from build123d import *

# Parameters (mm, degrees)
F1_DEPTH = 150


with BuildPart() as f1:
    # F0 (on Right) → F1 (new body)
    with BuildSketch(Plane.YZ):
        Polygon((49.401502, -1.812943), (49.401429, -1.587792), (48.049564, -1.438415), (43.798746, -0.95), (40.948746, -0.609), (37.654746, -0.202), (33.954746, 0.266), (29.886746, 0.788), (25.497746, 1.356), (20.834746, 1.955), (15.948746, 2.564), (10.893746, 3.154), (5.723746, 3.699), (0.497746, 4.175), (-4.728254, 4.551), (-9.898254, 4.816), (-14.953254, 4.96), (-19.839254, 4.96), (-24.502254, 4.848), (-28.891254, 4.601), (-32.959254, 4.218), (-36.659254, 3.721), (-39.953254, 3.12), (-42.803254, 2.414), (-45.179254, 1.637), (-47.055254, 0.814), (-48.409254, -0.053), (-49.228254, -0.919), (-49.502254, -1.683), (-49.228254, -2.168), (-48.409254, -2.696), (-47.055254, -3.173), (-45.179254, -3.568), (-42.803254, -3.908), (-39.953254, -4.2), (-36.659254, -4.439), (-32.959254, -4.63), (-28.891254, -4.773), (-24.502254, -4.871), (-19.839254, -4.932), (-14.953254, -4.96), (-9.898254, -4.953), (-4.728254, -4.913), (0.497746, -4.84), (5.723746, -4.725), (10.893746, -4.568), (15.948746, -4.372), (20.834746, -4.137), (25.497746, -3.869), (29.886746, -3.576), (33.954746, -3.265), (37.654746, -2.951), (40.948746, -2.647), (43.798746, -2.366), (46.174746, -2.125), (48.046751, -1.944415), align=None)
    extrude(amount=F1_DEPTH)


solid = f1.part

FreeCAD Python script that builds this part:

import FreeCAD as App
import Part
import Sketcher
from FreeCAD import Vector
Q = App.Units.Quantity

doc = App.newDocument("Part")
body = doc.addObject("PartDesign::Body", "Body")

# Sketch on YZ plane
sketch1 = body.newObject("Sketcher::SketchObject", "Sketch")
sketch1.AttachmentSupport = (doc.getObject("YZ_Plane"), [""])
sketch1.MapMode = "FlatFace"
sketch1.addGeometry(Part.LineSegment(Vector(49.401502, -1.812943, 0), Vector(49.401429, -1.587792, 0)), False)
sketch1.addGeometry(Part.LineSegment(Vector(49.401429, -1.587792, 0), Vector(48.049564, -1.438415, 0)), False)
sketch1.addGeometry(Part.LineSegment(Vector(48.049564, -1.438415, 0), Vector(43.798746, -0.95, 0)), False)
sketch1.addGeometry(Part.LineSegment(Vector(43.798746, -0.95, 0), Vector(40.948746, -0.609, 0)), False)
sketch1.addGeometry(Part.LineSegment(Vector(40.948746, -0.609, 0), Vector(37.654746, -0.202, 0)), False)
sketch1.addGeometry(Part.LineSegment(Vector(37.654746, -0.202, 0), Vector(33.954746, 0.266, 0)), False)
sketch1.addGeometry(Part.LineSegment(Vector(33.954746, 0.266, 0), Vector(29.886746, 0.788, 0)), False)
sketch1.addGeometry(Part.LineSegment(Vector(29.886746, 0.788, 0), Vector(25.497746, 1.356, 0)), False)
sketch1.addGeometry(Part.LineSegment(Vector(25.497746, 1.356, 0), Vector(20.834746, 1.955, 0)), False)
sketch1.addGeometry(Part.LineSegment(Vector(20.834746, 1.955, 0), Vector(15.948746, 2.564, 0)), False)
sketch1.addGeometry(Part.LineSegment(Vector(15.948746, 2.564, 0), Vector(10.893746, 3.154, 0)), False)
sketch1.addGeometry(Part.LineSegment(Vector(10.893746, 3.154, 0), Vector(5.723746, 3.699, 0)), False)
sketch1.addGeometry(Part.LineSegment(Vector(5.723746, 3.699, 0), Vector(0.497746, 4.175, 0)), False)
sketch1.addGeometry(Part.LineSegment(Vector(0.497746, 4.175, 0), Vector(-4.728254, 4.551, 0)), False)
sketch1.addGeometry(Part.LineSegment(Vector(-4.728254, 4.551, 0), Vector(-9.898254, 4.816, 0)), False)
sketch1.addGeometry(Part.LineSegment(Vector(-9.898254, 4.816, 0), Vector(-14.953254, 4.96, 0)), False)
sketch1.addGeometry(Part.LineSegment(Vector(-14.953254, 4.96, 0), Vector(-19.839254, 4.96, 0)), False)
sketch1.addGeometry(Part.LineSegment(Vector(-19.839254, 4.96, 0), Vector(-24.502254, 4.848, 0)), False)
sketch1.addGeometry(Part.LineSegment(Vector(-24.502254, 4.848, 0), Vector(-28.891254, 4.601, 0)), False)
sketch1.addGeometry(Part.LineSegment(Vector(-28.891254, 4.601, 0), Vector(-32.959254, 4.218, 0)), False)
sketch1.addGeometry(Part.LineSegment(Vector(-32.959254, 4.218, 0), Vector(-36.659254, 3.721, 0)), False)
sketch1.addGeometry(Part.LineSegment(Vector(-36.659254, 3.721, 0), Vector(-39.953254, 3.12, 0)), False)
sketch1.addGeometry(Part.LineSegment(Vector(-39.953254, 3.12, 0), Vector(-42.803254, 2.414, 0)), False)
sketch1.addGeometry(Part.LineSegment(Vector(-42.803254, 2.414, 0), Vector(-45.179254, 1.637, 0)), False)
sketch1.addGeometry(Part.LineSegment(Vector(-45.179254, 1.637, 0), Vector(-47.055254, 0.814, 0)), False)
sketch1.addGeometry(Part.LineSegment(Vector(-47.055254, 0.814, 0), Vector(-48.409254, -0.053, 0)), False)
sketch1.addGeometry(Part.LineSegment(Vector(-48.409254, -0.053, 0), Vector(-49.228254, -0.919, 0)), False)
sketch1.addGeometry(Part.LineSegment(Vector(-49.228254, -0.919, 0), Vector(-49.502254, -1.683, 0)), False)
sketch1.addGeometry(Part.LineSegment(Vector(-49.502254, -1.683, 0), Vector(-49.228254, -2.168, 0)), False)
sketch1.addGeometry(Part.LineSegment(Vector(-49.228254, -2.168, 0), Vector(-48.409254, -2.696, 0)), False)
sketch1.addGeometry(Part.LineSegment(Vector(-48.409254, -2.696, 0), Vector(-47.055254, -3.173, 0)), False)
sketch1.addGeometry(Part.LineSegment(Vector(-47.055254, -3.173, 0), Vector(-45.179254, -3.568, 0)), False)
sketch1.addGeometry(Part.LineSegment(Vector(-45.179254, -3.568, 0), Vector(-42.803254, -3.908, 0)), False)
sketch1.addGeometry(Part.LineSegment(Vector(-42.803254, -3.908, 0), Vector(-39.953254, -4.2, 0)), False)
sketch1.addGeometry(Part.LineSegment(Vector(-39.953254, -4.2, 0), Vector(-36.659254, -4.439, 0)), False)
sketch1.addGeometry(Part.LineSegment(Vector(-36.659254, -4.439, 0), Vector(-32.959254, -4.63, 0)), False)
sketch1.addGeometry(Part.LineSegment(Vector(-32.959254, -4.63, 0), Vector(-28.891254, -4.773, 0)), False)
sketch1.addGeometry(Part.LineSegment(Vector(-28.891254, -4.773, 0), Vector(-24.502254, -4.871, 0)), False)
sketch1.addGeometry(Part.LineSegment(Vector(-24.502254, -4.871, 0), Vector(-19.839254, -4.932, 0)), False)
sketch1.addGeometry(Part.LineSegment(Vector(-19.839254, -4.932, 0), Vector(-14.953254, -4.96, 0)), False)
sketch1.addGeometry(Part.LineSegment(Vector(-14.953254, -4.96, 0), Vector(-9.898254, -4.953, 0)), False)
sketch1.addGeometry(Part.LineSegment(Vector(-9.898254, -4.953, 0), Vector(-4.728254, -4.913, 0)), False)
sketch1.addGeometry(Part.LineSegment(Vector(-4.728254, -4.913, 0), Vector(0.497746, -4.84, 0)), False)
sketch1.addGeometry(Part.LineSegment(Vector(0.497746, -4.84, 0), Vector(5.723746, -4.725, 0)), False)
sketch1.addGeometry(Part.LineSegment(Vector(5.723746, -4.725, 0), Vector(10.893746, -4.568, 0)), False)
sketch1.addGeometry(Part.LineSegment(Vector(10.893746, -4.568, 0), Vector(15.948746, -4.372, 0)), False)
sketch1.addGeometry(Part.LineSegment(Vector(15.948746, -4.372, 0), Vector(20.834746, -4.137, 0)), False)
sketch1.addGeometry(Part.LineSegment(Vector(20.834746, -4.137, 0), Vector(25.497746, -3.869, 0)), False)
sketch1.addGeometry(Part.LineSegment(Vector(25.497746, -3.869, 0), Vector(29.886746, -3.576, 0)), False)
sketch1.addGeometry(Part.LineSegment(Vector(29.886746, -3.576, 0), Vector(33.954746, -3.265, 0)), False)
sketch1.addGeometry(Part.LineSegment(Vector(33.954746, -3.265, 0), Vector(37.654746, -2.951, 0)), False)
sketch1.addGeometry(Part.LineSegment(Vector(37.654746, -2.951, 0), Vector(40.948746, -2.647, 0)), False)
sketch1.addGeometry(Part.LineSegment(Vector(40.948746, -2.647, 0), Vector(43.798746, -2.366, 0)), False)
sketch1.addGeometry(Part.LineSegment(Vector(43.798746, -2.366, 0), Vector(46.174746, -2.125, 0)), False)
sketch1.addGeometry(Part.LineSegment(Vector(46.174746, -2.125, 0), Vector(48.046751, -1.944415, 0)), False)
sketch1.addGeometry(Part.LineSegment(Vector(48.046751, -1.944415, 0), Vector(49.401502, -1.812943, 0)), False)
sketch1.addConstraint(Sketcher.Constraint("Coincident", 0, 2, 1, 1))
sketch1.addConstraint(Sketcher.Constraint("Coincident", 1, 2, 2, 1))
sketch1.addConstraint(Sketcher.Constraint("Coincident", 2, 2, 3, 1))
sketch1.addConstraint(Sketcher.Constraint("Coincident", 3, 2, 4, 1))
sketch1.addConstraint(Sketcher.Constraint("Coincident", 4, 2, 5, 1))
sketch1.addConstraint(Sketcher.Constraint("Coincident", 5, 2, 6, 1))
sketch1.addConstraint(Sketcher.Constraint("Coincident", 6, 2, 7, 1))
sketch1.addConstraint(Sketcher.Constraint("Coincident", 7, 2, 8, 1))
sketch1.addConstraint(Sketcher.Constraint("Coincident", 8, 2, 9, 1))
sketch1.addConstraint(Sketcher.Constraint("Coincident", 9, 2, 10, 1))
sketch1.addConstraint(Sketcher.Constraint("Coincident", 10, 2, 11, 1))
sketch1.addConstraint(Sketcher.Constraint("Coincident", 11, 2, 12, 1))
sketch1.addConstraint(Sketcher.Constraint("Coincident", 12, 2, 13, 1))
sketch1.addConstraint(Sketcher.Constraint("Coincident", 13, 2, 14, 1))
sketch1.addConstraint(Sketcher.Constraint("Coincident", 14, 2, 15, 1))
sketch1.addConstraint(Sketcher.Constraint("Coincident", 15, 2, 16, 1))
sketch1.addConstraint(Sketcher.Constraint("Coincident", 16, 2, 17, 1))
sketch1.addConstraint(Sketcher.Constraint("Coincident", 17, 2, 18, 1))
sketch1.addConstraint(Sketcher.Constraint("Coincident", 18, 2, 19, 1))
sketch1.addConstraint(Sketcher.Constraint("Coincident", 19, 2, 20, 1))
sketch1.addConstraint(Sketcher.Constraint("Coincident", 20, 2, 21, 1))
sketch1.addConstraint(Sketcher.Constraint("Coincident", 21, 2, 22, 1))
sketch1.addConstraint(Sketcher.Constraint("Coincident", 22, 2, 23, 1))
sketch1.addConstraint(Sketcher.Constraint("Coincident", 23, 2, 24, 1))
sketch1.addConstraint(Sketcher.Constraint("Coincident", 24, 2, 25, 1))
sketch1.addConstraint(Sketcher.Constraint("Coincident", 25, 2, 26, 1))
sketch1.addConstraint(Sketcher.Constraint("Coincident", 26, 2, 27, 1))
sketch1.addConstraint(Sketcher.Constraint("Coincident", 27, 2, 28, 1))
sketch1.addConstraint(Sketcher.Constraint("Coincident", 28, 2, 29, 1))
sketch1.addConstraint(Sketcher.Constraint("Coincident", 29, 2, 30, 1))
sketch1.addConstraint(Sketcher.Constraint("Coincident", 30, 2, 31, 1))
sketch1.addConstraint(Sketcher.Constraint("Coincident", 31, 2, 32, 1))
sketch1.addConstraint(Sketcher.Constraint("Coincident", 32, 2, 33, 1))
sketch1.addConstraint(Sketcher.Constraint("Coincident", 33, 2, 34, 1))
sketch1.addConstraint(Sketcher.Constraint("Coincident", 34, 2, 35, 1))
sketch1.addConstraint(Sketcher.Constraint("Coincident", 35, 2, 36, 1))
sketch1.addConstraint(Sketcher.Constraint("Coincident", 36, 2, 37, 1))
sketch1.addConstraint(Sketcher.Constraint("Coincident", 37, 2, 38, 1))
sketch1.addConstraint(Sketcher.Constraint("Coincident", 38, 2, 39, 1))
sketch1.addConstraint(Sketcher.Constraint("Coincident", 39, 2, 40, 1))
sketch1.addConstraint(Sketcher.Constraint("Coincident", 40, 2, 41, 1))
sketch1.addConstraint(Sketcher.Constraint("Coincident", 41, 2, 42, 1))
sketch1.addConstraint(Sketcher.Constraint("Coincident", 42, 2, 43, 1))
sketch1.addConstraint(Sketcher.Constraint("Coincident", 43, 2, 44, 1))
sketch1.addConstraint(Sketcher.Constraint("Coincident", 44, 2, 45, 1))
sketch1.addConstraint(Sketcher.Constraint("Coincident", 45, 2, 46, 1))
sketch1.addConstraint(Sketcher.Constraint("Coincident", 46, 2, 47, 1))
sketch1.addConstraint(Sketcher.Constraint("Coincident", 47, 2, 48, 1))
sketch1.addConstraint(Sketcher.Constraint("Coincident", 48, 2, 49, 1))
sketch1.addConstraint(Sketcher.Constraint("Coincident", 49, 2, 50, 1))
sketch1.addConstraint(Sketcher.Constraint("Coincident", 50, 2, 51, 1))
sketch1.addConstraint(Sketcher.Constraint("Coincident", 51, 2, 52, 1))
sketch1.addConstraint(Sketcher.Constraint("Coincident", 52, 2, 53, 1))
sketch1.addConstraint(Sketcher.Constraint("Coincident", 53, 2, 54, 1))
sketch1.addConstraint(Sketcher.Constraint("Coincident", 54, 2, 55, 1))
sketch1.addConstraint(Sketcher.Constraint("Coincident", 55, 2, 0, 1))
sketch1.addConstraint(Sketcher.Constraint("Horizontal", 16))
sketch1.addConstraint(Sketcher.Constraint("Symmetric", 15, 2, 39, 2, -1))
sketch1.addConstraint(Sketcher.Constraint("Vertical", 26, 2, 28, 2))
sketch1.addConstraint(Sketcher.Constraint("Vertical", 25, 2, 29, 2))
sketch1.addConstraint(Sketcher.Constraint("Vertical", 24, 2, 30, 2))
sketch1.addConstraint(Sketcher.Constraint("Vertical", 23, 2, 31, 2))
sketch1.addConstraint(Sketcher.Constraint("Vertical", 22, 2, 32, 2))
sketch1.addConstraint(Sketcher.Constraint("Vertical", 21, 2, 33, 2))
sketch1.addConstraint(Sketcher.Constraint("Vertical", 20, 2, 34, 2))
sketch1.addConstraint(Sketcher.Constraint("Vertical", 19, 2, 35, 2))
sketch1.addConstraint(Sketcher.Constraint("Vertical", 18, 2, 36, 2))
sketch1.addConstraint(Sketcher.Constraint("Vertical", 17, 2, 37, 2))
sketch1.addConstraint(Sketcher.Constraint("Vertical", 16, 2, 38, 2))
sketch1.addConstraint(Sketcher.Constraint("Vertical", 14, 2, 40, 2))
sketch1.addConstraint(Sketcher.Constraint("Vertical", 13, 2, 41, 2))
sketch1.addConstraint(Sketcher.Constraint("Vertical", 12, 2, 42, 2))
sketch1.addConstraint(Sketcher.Constraint("Vertical", 11, 2, 43, 2))
sketch1.addConstraint(Sketcher.Constraint("Vertical", 10, 2, 44, 2))
sketch1.addConstraint(Sketcher.Constraint("Vertical", 9, 2, 45, 2))
sketch1.addConstraint(Sketcher.Constraint("Vertical", 8, 2, 46, 2))
sketch1.addConstraint(Sketcher.Constraint("Vertical", 7, 2, 47, 2))
sketch1.addConstraint(Sketcher.Constraint("Vertical", 6, 2, 48, 2))
sketch1.addConstraint(Sketcher.Constraint("Vertical", 5, 2, 49, 2))
sketch1.addConstraint(Sketcher.Constraint("Vertical", 4, 2, 50, 2))
sketch1.addConstraint(Sketcher.Constraint("Vertical", 3, 2, 51, 2))
sketch1.addConstraint(Sketcher.Constraint("Vertical", 2, 2, 52, 2))
sketch1.addConstraint(Sketcher.Constraint("DistanceX", 12, 2, 7, 2, 25.0))
sketch1.addConstraint(Sketcher.Constraint("DistanceX", 17, 2, 12, 2, 25.0))
sketch1.addConstraint(Sketcher.Constraint("DistanceY", 33, 2, -1, 1, 4.2))
sketch1.addConstraint(Sketcher.Constraint("Angle", 8, Q("172.679983 deg")))
sketch1.addConstraint(Sketcher.Constraint("DistanceX", 5, 2, 4, 2, 3.7))
sketch1.addConstraint(Sketcher.Constraint("DistanceX", 20, 2, 19, 2, 3.7))
sketch1.addConstraint(Sketcher.Constraint("DistanceY", 24, 2, 22, 2, 1.6))
sketch1.addConstraint(Sketcher.Constraint("DistanceY", 31, 2, 28, 2, 1.4))
sketch1.addConstraint(Sketcher.Constraint("DistanceY", 43, 2, 12, 2, 8.9))
sketch1.addConstraint(Sketcher.Constraint("DistanceX", 16, 2, 16, 1, 4.886))
sketch1.addConstraint(Sketcher.Constraint("DistanceY", 2, 2, -1, 1, 0.95))
sketch1.addConstraint(Sketcher.Constraint("DistanceY", -1, 1, 15, 2, 4.96))
sketch1.addConstraint(Sketcher.Constraint("DistanceY", -1, 1, 21, 2, 3.12))
sketch1.addConstraint(Sketcher.Constraint("DistanceY", 35, 2, -1, 1, 4.63))
sketch1.addConstraint(Sketcher.Constraint("DistanceY", 42, 2, -1, 1, 4.84))
sketch1.addConstraint(Sketcher.Constraint("DistanceX", 3, 2, 2, 2, 2.85))
sketch1.addConstraint(Sketcher.Constraint("DistanceY", 4, 2, 6, 2, 0.99))
sketch1.addConstraint(Sketcher.Constraint("DistanceY", 5, 2, 7, 2, 1.09))
sketch1.addConstraint(Sketcher.Constraint("DistanceX", 8, 2, 5, 2, 13.12))
sketch1.addConstraint(Sketcher.Constraint("DistanceY", 9, 2, 10, 2, 0.59))
sketch1.addConstraint(Sketcher.Constraint("DistanceX", 11, 2, 10, 2, 5.17))
sketch1.addConstraint(Sketcher.Constraint("DistanceY", 8, 2, 12, 2, 2.22))
sketch1.addConstraint(Sketcher.Constraint("DistanceX", 14, 2, 13, 2, 5.17))
sketch1.addConstraint(Sketcher.Constraint("DistanceY", 13, 2, 18, 2, 0.05))
sketch1.addConstraint(Sketcher.Constraint("DistanceY", 19, 2, 17, 2, 0.63))
sketch1.addConstraint(Sketcher.Constraint("DistanceX", 19, 2, 16, 2, 13.12))
sketch1.addConstraint(Sketcher.Constraint("DistanceY", 20, 2, 18, 2, 0.88))
sketch1.addConstraint(Sketcher.Constraint("DistanceX", 22, 2, 21, 2, 2.85))
sketch1.addConstraint(Sketcher.Constraint("DistanceX", 23, 2, 20, 2, 8.52))
sketch1.addConstraint(Sketcher.Constraint("DistanceX", 25, 2, 23, 2, 3.23))
sketch1.addConstraint(Sketcher.Constraint("DistanceY", 25, 2, 23, 2, 1.69))
sketch1.addConstraint(Sketcher.Constraint("DistanceY", 27, 2, 25, 2, 1.63))
sketch1.addConstraint(Sketcher.Constraint("DistanceY", 29, 2, 24, 2, 3.51))
sketch1.addConstraint(Sketcher.Constraint("DistanceY", 30, 2, 27, 2, 1.49))
sketch1.addConstraint(Sketcher.Constraint("DistanceY", 32, 2, 31, 2, 0.34))
sketch1.addConstraint(Sketcher.Constraint("DistanceY", 34, 2, 20, 2, 8.16))
sketch1.addConstraint(Sketcher.Constraint("DistanceY", 38, 2, 17, 2, 9.78))
sketch1.addConstraint(Sketcher.Constraint("DistanceY", 40, 2, 41, 2, 0.04))
sketch1.addConstraint(Sketcher.Constraint("Distance", 51, 3.307998))
sketch1.addConstraint(Sketcher.Constraint("DistanceY", 3, 2, -1, 1, 0.609))
sketch1.addConstraint(Sketcher.Constraint("DistanceY", 4, 2, -1, 1, 0.202))
sketch1.addConstraint(Sketcher.Constraint("DistanceY", -1, 1, 5, 2, 0.266))
sketch1.addConstraint(Sketcher.Constraint("DistanceY", -1, 1, 8, 2, 1.955))
sketch1.addConstraint(Sketcher.Constraint("DistanceY", -1, 1, 9, 2, 2.564))
sketch1.addConstraint(Sketcher.Constraint("DistanceY", -1, 1, 11, 2, 3.699))
sketch1.addConstraint(Sketcher.Constraint("DistanceY", -1, 1, 13, 2, 4.551))
sketch1.addConstraint(Sketcher.Constraint("DistanceY", -1, 1, 14, 2, 4.816))
sketch1.addConstraint(Sketcher.Constraint("DistanceY", -1, 1, 17, 2, 4.848))
sketch1.addConstraint(Sketcher.Constraint("DistanceY", -1, 1, 22, 2, 2.414))
sketch1.addConstraint(Sketcher.Constraint("DistanceY", -1, 1, 23, 2, 1.637))
sketch1.addConstraint(Sketcher.Constraint("DistanceY", 26, 2, -1, 1, 0.919))
sketch1.addConstraint(Sketcher.Constraint("DistanceY", 28, 2, -1, 1, 2.168))
sketch1.addConstraint(Sketcher.Constraint("DistanceY", 36, 2, -1, 1, 4.773))
sketch1.addConstraint(Sketcher.Constraint("DistanceY", 37, 2, -1, 1, 4.871))
sketch1.addConstraint(Sketcher.Constraint("DistanceY", 40, 2, -1, 1, 4.953))
sketch1.addConstraint(Sketcher.Constraint("DistanceY", 44, 2, -1, 1, 4.568))
sketch1.addConstraint(Sketcher.Constraint("DistanceY", 45, 2, -1, 1, 4.372))
sketch1.addConstraint(Sketcher.Constraint("DistanceY", 46, 2, -1, 1, 4.137))
sketch1.addConstraint(Sketcher.Constraint("DistanceY", 47, 2, -1, 1, 3.869))
sketch1.addConstraint(Sketcher.Constraint("DistanceY", 48, 2, -1, 1, 3.576))
sketch1.addConstraint(Sketcher.Constraint("DistanceY", 49, 2, -1, 1, 3.265))
sketch1.addConstraint(Sketcher.Constraint("DistanceY", 50, 2, -1, 1, 2.951))
sketch1.addConstraint(Sketcher.Constraint("DistanceY", 51, 2, -1, 1, 2.647))
sketch1.addConstraint(Sketcher.Constraint("DistanceY", 52, 2, -1, 1, 2.366))
sketch1.addConstraint(Sketcher.Constraint("DistanceY", 53, 2, -1, 1, 2.125))
sketch1.addConstraint(Sketcher.Constraint("DistanceX", 6, 2, 5, 2, 4.068))
sketch1.addConstraint(Sketcher.Constraint("DistanceX", 9, 2, 8, 2, 4.886))
sketch1.addConstraint(Sketcher.Constraint("DistanceX", 10, 2, 9, 2, 5.055))
sketch1.addConstraint(Sketcher.Constraint("DistanceX", 13, 2, 12, 2, 5.226))
sketch1.addConstraint(Sketcher.Constraint("DistanceX", 15, 2, 14, 2, 5.055))
sketch1.addConstraint(Sketcher.Constraint("DistanceX", 18, 2, 17, 2, 4.389))
sketch1.addConstraint(Sketcher.Constraint("DistanceX", 21, 2, 20, 2, 3.294))
sketch1.addConstraint(Sketcher.Constraint("DistanceX", 24, 2, 23, 2, 1.876))
sketch1.addConstraint(Sketcher.Constraint("DistanceX", 26, 2, 25, 2, 0.819))
sketch1.addConstraint(Sketcher.Constraint("DistanceX", 27, 2, 26, 2, 0.274))
sketch1.addConstraint(Sketcher.Constraint("DistanceX", 52, 2, 53, 2, 2.376))
sketch1.addConstraint(Sketcher.Constraint("DistanceY", 54, 2, 1, 2, 0.506))
sketch1.addConstraint(Sketcher.Constraint("Distance", 0, 0.225151))
sketch1.addConstraint(Sketcher.Constraint("DistanceX", -1, 1, 0, 2, 49.401429))
sketch1.addConstraint(Sketcher.Constraint("DistanceX", -1, 1, 54, 2, 48.046751))
sketch1.addConstraint(Sketcher.Constraint("DistanceY", 52, 2, 0, 2, 0.778208))
sketch1.addConstraint(Sketcher.Constraint("DistanceX", 54, 2, 55, 2, 1.354751))
sketch1.addConstraint(Sketcher.Constraint("DistanceX", 1, 2, 55, 2, 1.351938))
sketch1.addConstraint(Sketcher.Constraint("Distance", 1, 1.360093))
sketch1.addConstraint(Sketcher.Constraint("Distance", 2, 4.278785))
pad1 = body.newObject("PartDesign::Pad", "Pad")
pad1.Profile = sketch1
pad1.Length = 150

doc.recompute()
